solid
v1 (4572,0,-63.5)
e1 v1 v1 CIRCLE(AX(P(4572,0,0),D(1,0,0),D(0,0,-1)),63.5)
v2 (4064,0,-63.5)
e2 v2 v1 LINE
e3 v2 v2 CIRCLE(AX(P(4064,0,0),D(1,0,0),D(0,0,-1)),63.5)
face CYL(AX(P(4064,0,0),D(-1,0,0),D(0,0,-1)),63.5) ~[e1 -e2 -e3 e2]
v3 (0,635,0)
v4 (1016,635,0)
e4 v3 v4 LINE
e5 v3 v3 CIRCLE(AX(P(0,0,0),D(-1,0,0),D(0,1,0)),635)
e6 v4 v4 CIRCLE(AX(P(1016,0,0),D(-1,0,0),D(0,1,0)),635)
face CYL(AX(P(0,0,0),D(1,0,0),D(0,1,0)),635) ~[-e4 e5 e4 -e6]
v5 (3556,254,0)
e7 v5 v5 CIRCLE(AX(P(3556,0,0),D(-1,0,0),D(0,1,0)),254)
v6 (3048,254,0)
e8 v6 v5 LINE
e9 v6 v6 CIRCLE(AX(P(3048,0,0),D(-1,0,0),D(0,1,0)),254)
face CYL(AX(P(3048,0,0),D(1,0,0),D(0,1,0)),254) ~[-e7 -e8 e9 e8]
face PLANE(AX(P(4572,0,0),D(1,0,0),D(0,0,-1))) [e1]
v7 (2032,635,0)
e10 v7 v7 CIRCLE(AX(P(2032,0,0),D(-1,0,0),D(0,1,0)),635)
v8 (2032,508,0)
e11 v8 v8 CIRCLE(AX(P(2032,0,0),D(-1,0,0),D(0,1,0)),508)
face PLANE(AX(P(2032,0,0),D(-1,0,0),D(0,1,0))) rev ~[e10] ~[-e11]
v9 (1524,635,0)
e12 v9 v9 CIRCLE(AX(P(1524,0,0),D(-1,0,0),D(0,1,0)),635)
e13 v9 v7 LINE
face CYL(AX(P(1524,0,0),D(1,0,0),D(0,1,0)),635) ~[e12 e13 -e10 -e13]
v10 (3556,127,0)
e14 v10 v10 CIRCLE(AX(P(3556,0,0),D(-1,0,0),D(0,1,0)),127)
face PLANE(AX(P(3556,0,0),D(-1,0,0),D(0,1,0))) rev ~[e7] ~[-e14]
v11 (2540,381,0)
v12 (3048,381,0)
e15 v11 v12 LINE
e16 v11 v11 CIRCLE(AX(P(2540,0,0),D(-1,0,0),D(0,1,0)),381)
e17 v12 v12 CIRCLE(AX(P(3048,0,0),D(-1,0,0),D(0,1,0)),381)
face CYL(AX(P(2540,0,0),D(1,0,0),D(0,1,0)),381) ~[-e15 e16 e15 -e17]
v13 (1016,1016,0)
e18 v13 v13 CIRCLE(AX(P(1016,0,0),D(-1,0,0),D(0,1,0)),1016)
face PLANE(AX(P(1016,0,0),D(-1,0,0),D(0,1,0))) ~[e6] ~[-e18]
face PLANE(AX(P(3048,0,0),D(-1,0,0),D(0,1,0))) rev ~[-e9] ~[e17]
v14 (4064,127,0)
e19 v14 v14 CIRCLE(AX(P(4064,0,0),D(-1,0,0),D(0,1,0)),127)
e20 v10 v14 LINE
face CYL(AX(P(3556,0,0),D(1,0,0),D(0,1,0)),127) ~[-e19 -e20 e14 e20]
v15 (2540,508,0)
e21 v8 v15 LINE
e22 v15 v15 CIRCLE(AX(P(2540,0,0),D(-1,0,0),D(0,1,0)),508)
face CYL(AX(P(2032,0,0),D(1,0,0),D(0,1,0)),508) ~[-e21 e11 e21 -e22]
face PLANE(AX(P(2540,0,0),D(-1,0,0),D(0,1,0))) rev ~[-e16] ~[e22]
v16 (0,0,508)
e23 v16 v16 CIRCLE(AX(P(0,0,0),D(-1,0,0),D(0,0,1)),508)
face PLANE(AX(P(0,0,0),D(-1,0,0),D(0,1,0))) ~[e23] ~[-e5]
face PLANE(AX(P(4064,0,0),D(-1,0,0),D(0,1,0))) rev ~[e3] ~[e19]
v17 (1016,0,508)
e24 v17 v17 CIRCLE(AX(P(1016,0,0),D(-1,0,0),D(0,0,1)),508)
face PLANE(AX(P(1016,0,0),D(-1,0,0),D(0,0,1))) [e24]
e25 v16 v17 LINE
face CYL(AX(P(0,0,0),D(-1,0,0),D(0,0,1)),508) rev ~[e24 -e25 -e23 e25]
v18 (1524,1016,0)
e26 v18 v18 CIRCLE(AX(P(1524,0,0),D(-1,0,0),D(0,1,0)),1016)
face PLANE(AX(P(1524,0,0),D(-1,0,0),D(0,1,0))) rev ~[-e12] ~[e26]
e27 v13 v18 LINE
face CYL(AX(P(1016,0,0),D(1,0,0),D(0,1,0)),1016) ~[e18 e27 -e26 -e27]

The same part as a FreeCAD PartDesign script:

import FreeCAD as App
import Part
import Sketcher

V = App.Vector
Q = App.Units.Quantity

doc = App.newDocument("Part")
body = doc.addObject("PartDesign::Body", "Body")

# Sketch on XY plane
sketch1 = body.newObject("Sketcher::SketchObject", "Sketch")
sketch1.AttachmentSupport = (doc.getObject("XY_Plane"), [""])
sketch1.MapMode = "FlatFace"
sketch1.addGeometry([
    Part.LineSegment(V(0, 635, 0), V(0, 0, 0)),  # 0
    Part.LineSegment(V(0, 0, 0), V(4064, 0, 0)),  # 1
    Part.LineSegment(V(4064, 0, 0), V(4064, 127, 0)),  # 2
    Part.LineSegment(V(4064, 127, 0), V(3556, 127, 0)),  # 3
    Part.LineSegment(V(3556, 127, 0), V(3556, 254, 0)),  # 4
    Part.LineSegment(V(3556, 254, 0), V(3048, 254, 0)),  # 5
    Part.LineSegment(V(3048, 254, 0), V(3048, 381, 0)),  # 6
    Part.LineSegment(V(3048, 381, 0), V(2540, 381, 0)),  # 7
    Part.LineSegment(V(2540, 381, 0), V(2540, 508, 0)),  # 8
    Part.LineSegment(V(2540, 508, 0), V(2032, 508, 0)),  # 9
    Part.LineSegment(V(2032, 508, 0), V(2032, 635, 0)),  # 10
    Part.LineSegment(V(2032, 635, 0), V(1524, 635, 0)),  # 11
    Part.LineSegment(V(1524, 635, 0), V(1524, 1016, 0)),  # 12
    Part.LineSegment(V(1524, 1016, 0), V(1016, 1016, 0)),  # 13
    Part.LineSegment(V(1016, 1016, 0), V(1016, 635, 0)),  # 14
    Part.LineSegment(V(1016, 635, 0), V(0, 635, 0)),  # 15
], False)
sketch1.addConstraint([
    Sketcher.Constraint("Coincident", 0, 2, 1, 1),
    Sketcher.Constraint("Coincident", 1, 2, 2, 1),
    Sketcher.Constraint("Coincident", 2, 2, 3, 1),
    Sketcher.Constraint("Coincident", 3, 2, 4, 1),
    Sketcher.Constraint("Coincident", 4, 2, 5, 1),
    Sketcher.Constraint("Coincident", 5, 2, 6, 1),
    Sketcher.Constraint("Coincident", 6, 2, 7, 1),
    Sketcher.Constraint("Coincident", 7, 2, 8, 1),
    Sketcher.Constraint("Coincident", 8, 2, 9, 1),
    Sketcher.Constraint("Coincident", 9, 2, 10, 1),
    Sketcher.Constraint("Coincident", 10, 2, 11, 1),
    Sketcher.Constraint("Coincident", 11, 2, 12, 1),
    Sketcher.Constraint("Coincident", 12, 2, 13, 1),
    Sketcher.Constraint("Coincident", 13, 2, 14, 1),
    Sketcher.Constraint("Coincident", 14, 2, 15, 1),
    Sketcher.Constraint("Coincident", 15, 2, 0, 1),
    Sketcher.Constraint("Vertical", 0),
    Sketcher.Constraint("Horizontal", 1),
    Sketcher.Constraint("Vertical", 2),
    Sketcher.Constraint("Horizontal", 3),
    Sketcher.Constraint("Vertical", 4),
    Sketcher.Constraint("Horizontal", 5),
    Sketcher.Constraint("Vertical", 6),
    Sketcher.Constraint("Horizontal", 7),
    Sketcher.Constraint("Vertical", 8),
    Sketcher.Constraint("Horizontal", 9),
    Sketcher.Constraint("Vertical", 10),
    Sketcher.Constraint("Horizontal", 11),
    Sketcher.Constraint("Vertical", 12),
    Sketcher.Constraint("Horizontal", 13),
    Sketcher.Constraint("Vertical", 14),
    Sketcher.Constraint("Horizontal", 15),
    Sketcher.Constraint("Coincident", 0, 2, -1, 1),
    Sketcher.Constraint("Horizontal", 11, 2, 14, 2),
    Sketcher.Constraint("Equal", 3, 5),
    Sketcher.Constraint("Equal", 5, 7),
    Sketcher.Constraint("Equal", 7, 9),
    Sketcher.Constraint("Equal", 9, 11),
    Sketcher.Constraint("Equal", 11, 13),
    Sketcher.Constraint("Equal", 2, 4),
    Sketcher.Constraint("Equal", 4, 6),
    Sketcher.Constraint("Equal", 6, 8),
    Sketcher.Constraint("Equal", 8, 10),
    Sketcher.Constraint("DistanceX", 3, 2, 3, 1, Q("20 in")),
    Sketcher.Constraint("DistanceX", 15, 2, 15, 1, Q("40 in")),
    Sketcher.Constraint("DistanceY", 0, 2, 0, 1, Q("25 in")),
    Sketcher.Constraint("DistanceY", 12, 1, 12, 2, Q("15 in")),
])
revolution = body.newObject("PartDesign::Revolution", "Revolution")
revolution.Profile = sketch1
revolution.ReferenceAxis = (sketch1, ["H_Axis"])
revolution.Angle = 360

# Sketch on YZ plane
sketch2 = body.newObject("Sketcher::SketchObject", "Sketch001")
sketch2.AttachmentSupport = (doc.getObject("YZ_Plane"), [""])
sketch2.MapMode = "FlatFace"
sketch2.addGeometry(Part.Circle(V(0, 0, 0), V(0, 0, 1), 508), False)
sketch2.addConstraint([
    Sketcher.Constraint("Coincident", 0, 3, -1, 1),
    Sketcher.Constraint("Diameter", 0, Q("40 in")),
])
pocket1 = body.newObject("PartDesign::Pocket", "Pocket")
pocket1.Profile = sketch2
pocket1.Length = Q("40 in")
pocket1.Reversed = True

# Sketch on YZ plane
sketch3 = body.newObject("Sketcher::SketchObject", "Sketch002")
sketch3.AttachmentSupport = (doc.getObject("YZ_Plane"), [""])
sketch3.MapMode = "FlatFace"
sketch3.AttachmentOffset = App.Placement(V(0, 0, 160 * 25.4), App.Rotation())
sketch3.addGeometry(Part.Circle(V(0, 0, 0), V(0, 0, 1), 63.5), False)
sketch3.addConstraint([
    Sketcher.Constraint("Coincident", 0, 3, -1, 1),
    Sketcher.Constraint("Diameter", 0, Q("5 in")),
])
pad1 = body.newObject("PartDesign::Pad", "Pad")
pad1.Profile = sketch3
pad1.Length = Q("20 in")

doc.recompute()
